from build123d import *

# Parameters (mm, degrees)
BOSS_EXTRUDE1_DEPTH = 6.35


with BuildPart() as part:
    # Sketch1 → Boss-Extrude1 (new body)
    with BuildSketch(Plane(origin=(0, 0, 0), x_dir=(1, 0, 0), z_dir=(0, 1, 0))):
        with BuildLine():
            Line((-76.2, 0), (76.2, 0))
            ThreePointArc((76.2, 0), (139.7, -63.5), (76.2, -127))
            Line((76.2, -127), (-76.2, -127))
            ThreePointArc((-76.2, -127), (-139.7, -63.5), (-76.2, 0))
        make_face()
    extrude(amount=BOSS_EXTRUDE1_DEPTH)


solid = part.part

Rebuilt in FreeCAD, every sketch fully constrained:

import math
import FreeCAD as App
import Part
import Sketcher

V = App.Vector
Q = App.Units.Quantity

doc = App.newDocument("Part")
body = doc.addObject("PartDesign::Body", "Body")

# Sketch on XZ plane
sketch1 = doc.addObject("Sketcher::SketchObject", "Sketch")
body.addObject(sketch1)
sketch1.AttachmentSupport = (doc.XZ_Plane, [""])
sketch1.MapMode = "FlatFace"
sketch1.addGeometry([
    Part.LineSegment(V(76, 0, 0), V(-76, 0, 0)),
    Part.ArcOfCircle(Part.Circle(V(-76, 64, 0), V(0, 0, 1), 64), math.radians(90), math.radians(270)),
    Part.LineSegment(V(-76, 127, 0), V(76, 127, 0)),
    Part.ArcOfCircle(Part.Circle(V(76, 64, 0), V(0, 0, 1), 64), math.radians(-90), math.radians(90)),
], False)
sketch1.addConstraint([
    Sketcher.Constraint("Tangent", 0, 2, 1, 2),
    Sketcher.Constraint("Tangent", 1, 1, 2, 1),
    Sketcher.Constraint("Tangent", 2, 2, 3, 2),
    Sketcher.Constraint("Tangent", 3, 1, 0, 1),
    Sketcher.Constraint("Horizontal", 0),
    Sketcher.Constraint("Horizontal", 2),
    Sketcher.Constraint("Symmetric", 0, 2, 3, 1, -1, 1),
    Sketcher.Constraint("Radius", 1, Q("2.5 in")),
    Sketcher.Constraint("DistanceX", 0, 2, 0, 1, Q("6 in")),
])
pad1 = doc.addObject("PartDesign::Pad", "Pad")
body.addObject(pad1)
pad1.Profile = sketch1
pad1.Length = Q("0.25 in")
pad1.Reversed = True

doc.recompute()
